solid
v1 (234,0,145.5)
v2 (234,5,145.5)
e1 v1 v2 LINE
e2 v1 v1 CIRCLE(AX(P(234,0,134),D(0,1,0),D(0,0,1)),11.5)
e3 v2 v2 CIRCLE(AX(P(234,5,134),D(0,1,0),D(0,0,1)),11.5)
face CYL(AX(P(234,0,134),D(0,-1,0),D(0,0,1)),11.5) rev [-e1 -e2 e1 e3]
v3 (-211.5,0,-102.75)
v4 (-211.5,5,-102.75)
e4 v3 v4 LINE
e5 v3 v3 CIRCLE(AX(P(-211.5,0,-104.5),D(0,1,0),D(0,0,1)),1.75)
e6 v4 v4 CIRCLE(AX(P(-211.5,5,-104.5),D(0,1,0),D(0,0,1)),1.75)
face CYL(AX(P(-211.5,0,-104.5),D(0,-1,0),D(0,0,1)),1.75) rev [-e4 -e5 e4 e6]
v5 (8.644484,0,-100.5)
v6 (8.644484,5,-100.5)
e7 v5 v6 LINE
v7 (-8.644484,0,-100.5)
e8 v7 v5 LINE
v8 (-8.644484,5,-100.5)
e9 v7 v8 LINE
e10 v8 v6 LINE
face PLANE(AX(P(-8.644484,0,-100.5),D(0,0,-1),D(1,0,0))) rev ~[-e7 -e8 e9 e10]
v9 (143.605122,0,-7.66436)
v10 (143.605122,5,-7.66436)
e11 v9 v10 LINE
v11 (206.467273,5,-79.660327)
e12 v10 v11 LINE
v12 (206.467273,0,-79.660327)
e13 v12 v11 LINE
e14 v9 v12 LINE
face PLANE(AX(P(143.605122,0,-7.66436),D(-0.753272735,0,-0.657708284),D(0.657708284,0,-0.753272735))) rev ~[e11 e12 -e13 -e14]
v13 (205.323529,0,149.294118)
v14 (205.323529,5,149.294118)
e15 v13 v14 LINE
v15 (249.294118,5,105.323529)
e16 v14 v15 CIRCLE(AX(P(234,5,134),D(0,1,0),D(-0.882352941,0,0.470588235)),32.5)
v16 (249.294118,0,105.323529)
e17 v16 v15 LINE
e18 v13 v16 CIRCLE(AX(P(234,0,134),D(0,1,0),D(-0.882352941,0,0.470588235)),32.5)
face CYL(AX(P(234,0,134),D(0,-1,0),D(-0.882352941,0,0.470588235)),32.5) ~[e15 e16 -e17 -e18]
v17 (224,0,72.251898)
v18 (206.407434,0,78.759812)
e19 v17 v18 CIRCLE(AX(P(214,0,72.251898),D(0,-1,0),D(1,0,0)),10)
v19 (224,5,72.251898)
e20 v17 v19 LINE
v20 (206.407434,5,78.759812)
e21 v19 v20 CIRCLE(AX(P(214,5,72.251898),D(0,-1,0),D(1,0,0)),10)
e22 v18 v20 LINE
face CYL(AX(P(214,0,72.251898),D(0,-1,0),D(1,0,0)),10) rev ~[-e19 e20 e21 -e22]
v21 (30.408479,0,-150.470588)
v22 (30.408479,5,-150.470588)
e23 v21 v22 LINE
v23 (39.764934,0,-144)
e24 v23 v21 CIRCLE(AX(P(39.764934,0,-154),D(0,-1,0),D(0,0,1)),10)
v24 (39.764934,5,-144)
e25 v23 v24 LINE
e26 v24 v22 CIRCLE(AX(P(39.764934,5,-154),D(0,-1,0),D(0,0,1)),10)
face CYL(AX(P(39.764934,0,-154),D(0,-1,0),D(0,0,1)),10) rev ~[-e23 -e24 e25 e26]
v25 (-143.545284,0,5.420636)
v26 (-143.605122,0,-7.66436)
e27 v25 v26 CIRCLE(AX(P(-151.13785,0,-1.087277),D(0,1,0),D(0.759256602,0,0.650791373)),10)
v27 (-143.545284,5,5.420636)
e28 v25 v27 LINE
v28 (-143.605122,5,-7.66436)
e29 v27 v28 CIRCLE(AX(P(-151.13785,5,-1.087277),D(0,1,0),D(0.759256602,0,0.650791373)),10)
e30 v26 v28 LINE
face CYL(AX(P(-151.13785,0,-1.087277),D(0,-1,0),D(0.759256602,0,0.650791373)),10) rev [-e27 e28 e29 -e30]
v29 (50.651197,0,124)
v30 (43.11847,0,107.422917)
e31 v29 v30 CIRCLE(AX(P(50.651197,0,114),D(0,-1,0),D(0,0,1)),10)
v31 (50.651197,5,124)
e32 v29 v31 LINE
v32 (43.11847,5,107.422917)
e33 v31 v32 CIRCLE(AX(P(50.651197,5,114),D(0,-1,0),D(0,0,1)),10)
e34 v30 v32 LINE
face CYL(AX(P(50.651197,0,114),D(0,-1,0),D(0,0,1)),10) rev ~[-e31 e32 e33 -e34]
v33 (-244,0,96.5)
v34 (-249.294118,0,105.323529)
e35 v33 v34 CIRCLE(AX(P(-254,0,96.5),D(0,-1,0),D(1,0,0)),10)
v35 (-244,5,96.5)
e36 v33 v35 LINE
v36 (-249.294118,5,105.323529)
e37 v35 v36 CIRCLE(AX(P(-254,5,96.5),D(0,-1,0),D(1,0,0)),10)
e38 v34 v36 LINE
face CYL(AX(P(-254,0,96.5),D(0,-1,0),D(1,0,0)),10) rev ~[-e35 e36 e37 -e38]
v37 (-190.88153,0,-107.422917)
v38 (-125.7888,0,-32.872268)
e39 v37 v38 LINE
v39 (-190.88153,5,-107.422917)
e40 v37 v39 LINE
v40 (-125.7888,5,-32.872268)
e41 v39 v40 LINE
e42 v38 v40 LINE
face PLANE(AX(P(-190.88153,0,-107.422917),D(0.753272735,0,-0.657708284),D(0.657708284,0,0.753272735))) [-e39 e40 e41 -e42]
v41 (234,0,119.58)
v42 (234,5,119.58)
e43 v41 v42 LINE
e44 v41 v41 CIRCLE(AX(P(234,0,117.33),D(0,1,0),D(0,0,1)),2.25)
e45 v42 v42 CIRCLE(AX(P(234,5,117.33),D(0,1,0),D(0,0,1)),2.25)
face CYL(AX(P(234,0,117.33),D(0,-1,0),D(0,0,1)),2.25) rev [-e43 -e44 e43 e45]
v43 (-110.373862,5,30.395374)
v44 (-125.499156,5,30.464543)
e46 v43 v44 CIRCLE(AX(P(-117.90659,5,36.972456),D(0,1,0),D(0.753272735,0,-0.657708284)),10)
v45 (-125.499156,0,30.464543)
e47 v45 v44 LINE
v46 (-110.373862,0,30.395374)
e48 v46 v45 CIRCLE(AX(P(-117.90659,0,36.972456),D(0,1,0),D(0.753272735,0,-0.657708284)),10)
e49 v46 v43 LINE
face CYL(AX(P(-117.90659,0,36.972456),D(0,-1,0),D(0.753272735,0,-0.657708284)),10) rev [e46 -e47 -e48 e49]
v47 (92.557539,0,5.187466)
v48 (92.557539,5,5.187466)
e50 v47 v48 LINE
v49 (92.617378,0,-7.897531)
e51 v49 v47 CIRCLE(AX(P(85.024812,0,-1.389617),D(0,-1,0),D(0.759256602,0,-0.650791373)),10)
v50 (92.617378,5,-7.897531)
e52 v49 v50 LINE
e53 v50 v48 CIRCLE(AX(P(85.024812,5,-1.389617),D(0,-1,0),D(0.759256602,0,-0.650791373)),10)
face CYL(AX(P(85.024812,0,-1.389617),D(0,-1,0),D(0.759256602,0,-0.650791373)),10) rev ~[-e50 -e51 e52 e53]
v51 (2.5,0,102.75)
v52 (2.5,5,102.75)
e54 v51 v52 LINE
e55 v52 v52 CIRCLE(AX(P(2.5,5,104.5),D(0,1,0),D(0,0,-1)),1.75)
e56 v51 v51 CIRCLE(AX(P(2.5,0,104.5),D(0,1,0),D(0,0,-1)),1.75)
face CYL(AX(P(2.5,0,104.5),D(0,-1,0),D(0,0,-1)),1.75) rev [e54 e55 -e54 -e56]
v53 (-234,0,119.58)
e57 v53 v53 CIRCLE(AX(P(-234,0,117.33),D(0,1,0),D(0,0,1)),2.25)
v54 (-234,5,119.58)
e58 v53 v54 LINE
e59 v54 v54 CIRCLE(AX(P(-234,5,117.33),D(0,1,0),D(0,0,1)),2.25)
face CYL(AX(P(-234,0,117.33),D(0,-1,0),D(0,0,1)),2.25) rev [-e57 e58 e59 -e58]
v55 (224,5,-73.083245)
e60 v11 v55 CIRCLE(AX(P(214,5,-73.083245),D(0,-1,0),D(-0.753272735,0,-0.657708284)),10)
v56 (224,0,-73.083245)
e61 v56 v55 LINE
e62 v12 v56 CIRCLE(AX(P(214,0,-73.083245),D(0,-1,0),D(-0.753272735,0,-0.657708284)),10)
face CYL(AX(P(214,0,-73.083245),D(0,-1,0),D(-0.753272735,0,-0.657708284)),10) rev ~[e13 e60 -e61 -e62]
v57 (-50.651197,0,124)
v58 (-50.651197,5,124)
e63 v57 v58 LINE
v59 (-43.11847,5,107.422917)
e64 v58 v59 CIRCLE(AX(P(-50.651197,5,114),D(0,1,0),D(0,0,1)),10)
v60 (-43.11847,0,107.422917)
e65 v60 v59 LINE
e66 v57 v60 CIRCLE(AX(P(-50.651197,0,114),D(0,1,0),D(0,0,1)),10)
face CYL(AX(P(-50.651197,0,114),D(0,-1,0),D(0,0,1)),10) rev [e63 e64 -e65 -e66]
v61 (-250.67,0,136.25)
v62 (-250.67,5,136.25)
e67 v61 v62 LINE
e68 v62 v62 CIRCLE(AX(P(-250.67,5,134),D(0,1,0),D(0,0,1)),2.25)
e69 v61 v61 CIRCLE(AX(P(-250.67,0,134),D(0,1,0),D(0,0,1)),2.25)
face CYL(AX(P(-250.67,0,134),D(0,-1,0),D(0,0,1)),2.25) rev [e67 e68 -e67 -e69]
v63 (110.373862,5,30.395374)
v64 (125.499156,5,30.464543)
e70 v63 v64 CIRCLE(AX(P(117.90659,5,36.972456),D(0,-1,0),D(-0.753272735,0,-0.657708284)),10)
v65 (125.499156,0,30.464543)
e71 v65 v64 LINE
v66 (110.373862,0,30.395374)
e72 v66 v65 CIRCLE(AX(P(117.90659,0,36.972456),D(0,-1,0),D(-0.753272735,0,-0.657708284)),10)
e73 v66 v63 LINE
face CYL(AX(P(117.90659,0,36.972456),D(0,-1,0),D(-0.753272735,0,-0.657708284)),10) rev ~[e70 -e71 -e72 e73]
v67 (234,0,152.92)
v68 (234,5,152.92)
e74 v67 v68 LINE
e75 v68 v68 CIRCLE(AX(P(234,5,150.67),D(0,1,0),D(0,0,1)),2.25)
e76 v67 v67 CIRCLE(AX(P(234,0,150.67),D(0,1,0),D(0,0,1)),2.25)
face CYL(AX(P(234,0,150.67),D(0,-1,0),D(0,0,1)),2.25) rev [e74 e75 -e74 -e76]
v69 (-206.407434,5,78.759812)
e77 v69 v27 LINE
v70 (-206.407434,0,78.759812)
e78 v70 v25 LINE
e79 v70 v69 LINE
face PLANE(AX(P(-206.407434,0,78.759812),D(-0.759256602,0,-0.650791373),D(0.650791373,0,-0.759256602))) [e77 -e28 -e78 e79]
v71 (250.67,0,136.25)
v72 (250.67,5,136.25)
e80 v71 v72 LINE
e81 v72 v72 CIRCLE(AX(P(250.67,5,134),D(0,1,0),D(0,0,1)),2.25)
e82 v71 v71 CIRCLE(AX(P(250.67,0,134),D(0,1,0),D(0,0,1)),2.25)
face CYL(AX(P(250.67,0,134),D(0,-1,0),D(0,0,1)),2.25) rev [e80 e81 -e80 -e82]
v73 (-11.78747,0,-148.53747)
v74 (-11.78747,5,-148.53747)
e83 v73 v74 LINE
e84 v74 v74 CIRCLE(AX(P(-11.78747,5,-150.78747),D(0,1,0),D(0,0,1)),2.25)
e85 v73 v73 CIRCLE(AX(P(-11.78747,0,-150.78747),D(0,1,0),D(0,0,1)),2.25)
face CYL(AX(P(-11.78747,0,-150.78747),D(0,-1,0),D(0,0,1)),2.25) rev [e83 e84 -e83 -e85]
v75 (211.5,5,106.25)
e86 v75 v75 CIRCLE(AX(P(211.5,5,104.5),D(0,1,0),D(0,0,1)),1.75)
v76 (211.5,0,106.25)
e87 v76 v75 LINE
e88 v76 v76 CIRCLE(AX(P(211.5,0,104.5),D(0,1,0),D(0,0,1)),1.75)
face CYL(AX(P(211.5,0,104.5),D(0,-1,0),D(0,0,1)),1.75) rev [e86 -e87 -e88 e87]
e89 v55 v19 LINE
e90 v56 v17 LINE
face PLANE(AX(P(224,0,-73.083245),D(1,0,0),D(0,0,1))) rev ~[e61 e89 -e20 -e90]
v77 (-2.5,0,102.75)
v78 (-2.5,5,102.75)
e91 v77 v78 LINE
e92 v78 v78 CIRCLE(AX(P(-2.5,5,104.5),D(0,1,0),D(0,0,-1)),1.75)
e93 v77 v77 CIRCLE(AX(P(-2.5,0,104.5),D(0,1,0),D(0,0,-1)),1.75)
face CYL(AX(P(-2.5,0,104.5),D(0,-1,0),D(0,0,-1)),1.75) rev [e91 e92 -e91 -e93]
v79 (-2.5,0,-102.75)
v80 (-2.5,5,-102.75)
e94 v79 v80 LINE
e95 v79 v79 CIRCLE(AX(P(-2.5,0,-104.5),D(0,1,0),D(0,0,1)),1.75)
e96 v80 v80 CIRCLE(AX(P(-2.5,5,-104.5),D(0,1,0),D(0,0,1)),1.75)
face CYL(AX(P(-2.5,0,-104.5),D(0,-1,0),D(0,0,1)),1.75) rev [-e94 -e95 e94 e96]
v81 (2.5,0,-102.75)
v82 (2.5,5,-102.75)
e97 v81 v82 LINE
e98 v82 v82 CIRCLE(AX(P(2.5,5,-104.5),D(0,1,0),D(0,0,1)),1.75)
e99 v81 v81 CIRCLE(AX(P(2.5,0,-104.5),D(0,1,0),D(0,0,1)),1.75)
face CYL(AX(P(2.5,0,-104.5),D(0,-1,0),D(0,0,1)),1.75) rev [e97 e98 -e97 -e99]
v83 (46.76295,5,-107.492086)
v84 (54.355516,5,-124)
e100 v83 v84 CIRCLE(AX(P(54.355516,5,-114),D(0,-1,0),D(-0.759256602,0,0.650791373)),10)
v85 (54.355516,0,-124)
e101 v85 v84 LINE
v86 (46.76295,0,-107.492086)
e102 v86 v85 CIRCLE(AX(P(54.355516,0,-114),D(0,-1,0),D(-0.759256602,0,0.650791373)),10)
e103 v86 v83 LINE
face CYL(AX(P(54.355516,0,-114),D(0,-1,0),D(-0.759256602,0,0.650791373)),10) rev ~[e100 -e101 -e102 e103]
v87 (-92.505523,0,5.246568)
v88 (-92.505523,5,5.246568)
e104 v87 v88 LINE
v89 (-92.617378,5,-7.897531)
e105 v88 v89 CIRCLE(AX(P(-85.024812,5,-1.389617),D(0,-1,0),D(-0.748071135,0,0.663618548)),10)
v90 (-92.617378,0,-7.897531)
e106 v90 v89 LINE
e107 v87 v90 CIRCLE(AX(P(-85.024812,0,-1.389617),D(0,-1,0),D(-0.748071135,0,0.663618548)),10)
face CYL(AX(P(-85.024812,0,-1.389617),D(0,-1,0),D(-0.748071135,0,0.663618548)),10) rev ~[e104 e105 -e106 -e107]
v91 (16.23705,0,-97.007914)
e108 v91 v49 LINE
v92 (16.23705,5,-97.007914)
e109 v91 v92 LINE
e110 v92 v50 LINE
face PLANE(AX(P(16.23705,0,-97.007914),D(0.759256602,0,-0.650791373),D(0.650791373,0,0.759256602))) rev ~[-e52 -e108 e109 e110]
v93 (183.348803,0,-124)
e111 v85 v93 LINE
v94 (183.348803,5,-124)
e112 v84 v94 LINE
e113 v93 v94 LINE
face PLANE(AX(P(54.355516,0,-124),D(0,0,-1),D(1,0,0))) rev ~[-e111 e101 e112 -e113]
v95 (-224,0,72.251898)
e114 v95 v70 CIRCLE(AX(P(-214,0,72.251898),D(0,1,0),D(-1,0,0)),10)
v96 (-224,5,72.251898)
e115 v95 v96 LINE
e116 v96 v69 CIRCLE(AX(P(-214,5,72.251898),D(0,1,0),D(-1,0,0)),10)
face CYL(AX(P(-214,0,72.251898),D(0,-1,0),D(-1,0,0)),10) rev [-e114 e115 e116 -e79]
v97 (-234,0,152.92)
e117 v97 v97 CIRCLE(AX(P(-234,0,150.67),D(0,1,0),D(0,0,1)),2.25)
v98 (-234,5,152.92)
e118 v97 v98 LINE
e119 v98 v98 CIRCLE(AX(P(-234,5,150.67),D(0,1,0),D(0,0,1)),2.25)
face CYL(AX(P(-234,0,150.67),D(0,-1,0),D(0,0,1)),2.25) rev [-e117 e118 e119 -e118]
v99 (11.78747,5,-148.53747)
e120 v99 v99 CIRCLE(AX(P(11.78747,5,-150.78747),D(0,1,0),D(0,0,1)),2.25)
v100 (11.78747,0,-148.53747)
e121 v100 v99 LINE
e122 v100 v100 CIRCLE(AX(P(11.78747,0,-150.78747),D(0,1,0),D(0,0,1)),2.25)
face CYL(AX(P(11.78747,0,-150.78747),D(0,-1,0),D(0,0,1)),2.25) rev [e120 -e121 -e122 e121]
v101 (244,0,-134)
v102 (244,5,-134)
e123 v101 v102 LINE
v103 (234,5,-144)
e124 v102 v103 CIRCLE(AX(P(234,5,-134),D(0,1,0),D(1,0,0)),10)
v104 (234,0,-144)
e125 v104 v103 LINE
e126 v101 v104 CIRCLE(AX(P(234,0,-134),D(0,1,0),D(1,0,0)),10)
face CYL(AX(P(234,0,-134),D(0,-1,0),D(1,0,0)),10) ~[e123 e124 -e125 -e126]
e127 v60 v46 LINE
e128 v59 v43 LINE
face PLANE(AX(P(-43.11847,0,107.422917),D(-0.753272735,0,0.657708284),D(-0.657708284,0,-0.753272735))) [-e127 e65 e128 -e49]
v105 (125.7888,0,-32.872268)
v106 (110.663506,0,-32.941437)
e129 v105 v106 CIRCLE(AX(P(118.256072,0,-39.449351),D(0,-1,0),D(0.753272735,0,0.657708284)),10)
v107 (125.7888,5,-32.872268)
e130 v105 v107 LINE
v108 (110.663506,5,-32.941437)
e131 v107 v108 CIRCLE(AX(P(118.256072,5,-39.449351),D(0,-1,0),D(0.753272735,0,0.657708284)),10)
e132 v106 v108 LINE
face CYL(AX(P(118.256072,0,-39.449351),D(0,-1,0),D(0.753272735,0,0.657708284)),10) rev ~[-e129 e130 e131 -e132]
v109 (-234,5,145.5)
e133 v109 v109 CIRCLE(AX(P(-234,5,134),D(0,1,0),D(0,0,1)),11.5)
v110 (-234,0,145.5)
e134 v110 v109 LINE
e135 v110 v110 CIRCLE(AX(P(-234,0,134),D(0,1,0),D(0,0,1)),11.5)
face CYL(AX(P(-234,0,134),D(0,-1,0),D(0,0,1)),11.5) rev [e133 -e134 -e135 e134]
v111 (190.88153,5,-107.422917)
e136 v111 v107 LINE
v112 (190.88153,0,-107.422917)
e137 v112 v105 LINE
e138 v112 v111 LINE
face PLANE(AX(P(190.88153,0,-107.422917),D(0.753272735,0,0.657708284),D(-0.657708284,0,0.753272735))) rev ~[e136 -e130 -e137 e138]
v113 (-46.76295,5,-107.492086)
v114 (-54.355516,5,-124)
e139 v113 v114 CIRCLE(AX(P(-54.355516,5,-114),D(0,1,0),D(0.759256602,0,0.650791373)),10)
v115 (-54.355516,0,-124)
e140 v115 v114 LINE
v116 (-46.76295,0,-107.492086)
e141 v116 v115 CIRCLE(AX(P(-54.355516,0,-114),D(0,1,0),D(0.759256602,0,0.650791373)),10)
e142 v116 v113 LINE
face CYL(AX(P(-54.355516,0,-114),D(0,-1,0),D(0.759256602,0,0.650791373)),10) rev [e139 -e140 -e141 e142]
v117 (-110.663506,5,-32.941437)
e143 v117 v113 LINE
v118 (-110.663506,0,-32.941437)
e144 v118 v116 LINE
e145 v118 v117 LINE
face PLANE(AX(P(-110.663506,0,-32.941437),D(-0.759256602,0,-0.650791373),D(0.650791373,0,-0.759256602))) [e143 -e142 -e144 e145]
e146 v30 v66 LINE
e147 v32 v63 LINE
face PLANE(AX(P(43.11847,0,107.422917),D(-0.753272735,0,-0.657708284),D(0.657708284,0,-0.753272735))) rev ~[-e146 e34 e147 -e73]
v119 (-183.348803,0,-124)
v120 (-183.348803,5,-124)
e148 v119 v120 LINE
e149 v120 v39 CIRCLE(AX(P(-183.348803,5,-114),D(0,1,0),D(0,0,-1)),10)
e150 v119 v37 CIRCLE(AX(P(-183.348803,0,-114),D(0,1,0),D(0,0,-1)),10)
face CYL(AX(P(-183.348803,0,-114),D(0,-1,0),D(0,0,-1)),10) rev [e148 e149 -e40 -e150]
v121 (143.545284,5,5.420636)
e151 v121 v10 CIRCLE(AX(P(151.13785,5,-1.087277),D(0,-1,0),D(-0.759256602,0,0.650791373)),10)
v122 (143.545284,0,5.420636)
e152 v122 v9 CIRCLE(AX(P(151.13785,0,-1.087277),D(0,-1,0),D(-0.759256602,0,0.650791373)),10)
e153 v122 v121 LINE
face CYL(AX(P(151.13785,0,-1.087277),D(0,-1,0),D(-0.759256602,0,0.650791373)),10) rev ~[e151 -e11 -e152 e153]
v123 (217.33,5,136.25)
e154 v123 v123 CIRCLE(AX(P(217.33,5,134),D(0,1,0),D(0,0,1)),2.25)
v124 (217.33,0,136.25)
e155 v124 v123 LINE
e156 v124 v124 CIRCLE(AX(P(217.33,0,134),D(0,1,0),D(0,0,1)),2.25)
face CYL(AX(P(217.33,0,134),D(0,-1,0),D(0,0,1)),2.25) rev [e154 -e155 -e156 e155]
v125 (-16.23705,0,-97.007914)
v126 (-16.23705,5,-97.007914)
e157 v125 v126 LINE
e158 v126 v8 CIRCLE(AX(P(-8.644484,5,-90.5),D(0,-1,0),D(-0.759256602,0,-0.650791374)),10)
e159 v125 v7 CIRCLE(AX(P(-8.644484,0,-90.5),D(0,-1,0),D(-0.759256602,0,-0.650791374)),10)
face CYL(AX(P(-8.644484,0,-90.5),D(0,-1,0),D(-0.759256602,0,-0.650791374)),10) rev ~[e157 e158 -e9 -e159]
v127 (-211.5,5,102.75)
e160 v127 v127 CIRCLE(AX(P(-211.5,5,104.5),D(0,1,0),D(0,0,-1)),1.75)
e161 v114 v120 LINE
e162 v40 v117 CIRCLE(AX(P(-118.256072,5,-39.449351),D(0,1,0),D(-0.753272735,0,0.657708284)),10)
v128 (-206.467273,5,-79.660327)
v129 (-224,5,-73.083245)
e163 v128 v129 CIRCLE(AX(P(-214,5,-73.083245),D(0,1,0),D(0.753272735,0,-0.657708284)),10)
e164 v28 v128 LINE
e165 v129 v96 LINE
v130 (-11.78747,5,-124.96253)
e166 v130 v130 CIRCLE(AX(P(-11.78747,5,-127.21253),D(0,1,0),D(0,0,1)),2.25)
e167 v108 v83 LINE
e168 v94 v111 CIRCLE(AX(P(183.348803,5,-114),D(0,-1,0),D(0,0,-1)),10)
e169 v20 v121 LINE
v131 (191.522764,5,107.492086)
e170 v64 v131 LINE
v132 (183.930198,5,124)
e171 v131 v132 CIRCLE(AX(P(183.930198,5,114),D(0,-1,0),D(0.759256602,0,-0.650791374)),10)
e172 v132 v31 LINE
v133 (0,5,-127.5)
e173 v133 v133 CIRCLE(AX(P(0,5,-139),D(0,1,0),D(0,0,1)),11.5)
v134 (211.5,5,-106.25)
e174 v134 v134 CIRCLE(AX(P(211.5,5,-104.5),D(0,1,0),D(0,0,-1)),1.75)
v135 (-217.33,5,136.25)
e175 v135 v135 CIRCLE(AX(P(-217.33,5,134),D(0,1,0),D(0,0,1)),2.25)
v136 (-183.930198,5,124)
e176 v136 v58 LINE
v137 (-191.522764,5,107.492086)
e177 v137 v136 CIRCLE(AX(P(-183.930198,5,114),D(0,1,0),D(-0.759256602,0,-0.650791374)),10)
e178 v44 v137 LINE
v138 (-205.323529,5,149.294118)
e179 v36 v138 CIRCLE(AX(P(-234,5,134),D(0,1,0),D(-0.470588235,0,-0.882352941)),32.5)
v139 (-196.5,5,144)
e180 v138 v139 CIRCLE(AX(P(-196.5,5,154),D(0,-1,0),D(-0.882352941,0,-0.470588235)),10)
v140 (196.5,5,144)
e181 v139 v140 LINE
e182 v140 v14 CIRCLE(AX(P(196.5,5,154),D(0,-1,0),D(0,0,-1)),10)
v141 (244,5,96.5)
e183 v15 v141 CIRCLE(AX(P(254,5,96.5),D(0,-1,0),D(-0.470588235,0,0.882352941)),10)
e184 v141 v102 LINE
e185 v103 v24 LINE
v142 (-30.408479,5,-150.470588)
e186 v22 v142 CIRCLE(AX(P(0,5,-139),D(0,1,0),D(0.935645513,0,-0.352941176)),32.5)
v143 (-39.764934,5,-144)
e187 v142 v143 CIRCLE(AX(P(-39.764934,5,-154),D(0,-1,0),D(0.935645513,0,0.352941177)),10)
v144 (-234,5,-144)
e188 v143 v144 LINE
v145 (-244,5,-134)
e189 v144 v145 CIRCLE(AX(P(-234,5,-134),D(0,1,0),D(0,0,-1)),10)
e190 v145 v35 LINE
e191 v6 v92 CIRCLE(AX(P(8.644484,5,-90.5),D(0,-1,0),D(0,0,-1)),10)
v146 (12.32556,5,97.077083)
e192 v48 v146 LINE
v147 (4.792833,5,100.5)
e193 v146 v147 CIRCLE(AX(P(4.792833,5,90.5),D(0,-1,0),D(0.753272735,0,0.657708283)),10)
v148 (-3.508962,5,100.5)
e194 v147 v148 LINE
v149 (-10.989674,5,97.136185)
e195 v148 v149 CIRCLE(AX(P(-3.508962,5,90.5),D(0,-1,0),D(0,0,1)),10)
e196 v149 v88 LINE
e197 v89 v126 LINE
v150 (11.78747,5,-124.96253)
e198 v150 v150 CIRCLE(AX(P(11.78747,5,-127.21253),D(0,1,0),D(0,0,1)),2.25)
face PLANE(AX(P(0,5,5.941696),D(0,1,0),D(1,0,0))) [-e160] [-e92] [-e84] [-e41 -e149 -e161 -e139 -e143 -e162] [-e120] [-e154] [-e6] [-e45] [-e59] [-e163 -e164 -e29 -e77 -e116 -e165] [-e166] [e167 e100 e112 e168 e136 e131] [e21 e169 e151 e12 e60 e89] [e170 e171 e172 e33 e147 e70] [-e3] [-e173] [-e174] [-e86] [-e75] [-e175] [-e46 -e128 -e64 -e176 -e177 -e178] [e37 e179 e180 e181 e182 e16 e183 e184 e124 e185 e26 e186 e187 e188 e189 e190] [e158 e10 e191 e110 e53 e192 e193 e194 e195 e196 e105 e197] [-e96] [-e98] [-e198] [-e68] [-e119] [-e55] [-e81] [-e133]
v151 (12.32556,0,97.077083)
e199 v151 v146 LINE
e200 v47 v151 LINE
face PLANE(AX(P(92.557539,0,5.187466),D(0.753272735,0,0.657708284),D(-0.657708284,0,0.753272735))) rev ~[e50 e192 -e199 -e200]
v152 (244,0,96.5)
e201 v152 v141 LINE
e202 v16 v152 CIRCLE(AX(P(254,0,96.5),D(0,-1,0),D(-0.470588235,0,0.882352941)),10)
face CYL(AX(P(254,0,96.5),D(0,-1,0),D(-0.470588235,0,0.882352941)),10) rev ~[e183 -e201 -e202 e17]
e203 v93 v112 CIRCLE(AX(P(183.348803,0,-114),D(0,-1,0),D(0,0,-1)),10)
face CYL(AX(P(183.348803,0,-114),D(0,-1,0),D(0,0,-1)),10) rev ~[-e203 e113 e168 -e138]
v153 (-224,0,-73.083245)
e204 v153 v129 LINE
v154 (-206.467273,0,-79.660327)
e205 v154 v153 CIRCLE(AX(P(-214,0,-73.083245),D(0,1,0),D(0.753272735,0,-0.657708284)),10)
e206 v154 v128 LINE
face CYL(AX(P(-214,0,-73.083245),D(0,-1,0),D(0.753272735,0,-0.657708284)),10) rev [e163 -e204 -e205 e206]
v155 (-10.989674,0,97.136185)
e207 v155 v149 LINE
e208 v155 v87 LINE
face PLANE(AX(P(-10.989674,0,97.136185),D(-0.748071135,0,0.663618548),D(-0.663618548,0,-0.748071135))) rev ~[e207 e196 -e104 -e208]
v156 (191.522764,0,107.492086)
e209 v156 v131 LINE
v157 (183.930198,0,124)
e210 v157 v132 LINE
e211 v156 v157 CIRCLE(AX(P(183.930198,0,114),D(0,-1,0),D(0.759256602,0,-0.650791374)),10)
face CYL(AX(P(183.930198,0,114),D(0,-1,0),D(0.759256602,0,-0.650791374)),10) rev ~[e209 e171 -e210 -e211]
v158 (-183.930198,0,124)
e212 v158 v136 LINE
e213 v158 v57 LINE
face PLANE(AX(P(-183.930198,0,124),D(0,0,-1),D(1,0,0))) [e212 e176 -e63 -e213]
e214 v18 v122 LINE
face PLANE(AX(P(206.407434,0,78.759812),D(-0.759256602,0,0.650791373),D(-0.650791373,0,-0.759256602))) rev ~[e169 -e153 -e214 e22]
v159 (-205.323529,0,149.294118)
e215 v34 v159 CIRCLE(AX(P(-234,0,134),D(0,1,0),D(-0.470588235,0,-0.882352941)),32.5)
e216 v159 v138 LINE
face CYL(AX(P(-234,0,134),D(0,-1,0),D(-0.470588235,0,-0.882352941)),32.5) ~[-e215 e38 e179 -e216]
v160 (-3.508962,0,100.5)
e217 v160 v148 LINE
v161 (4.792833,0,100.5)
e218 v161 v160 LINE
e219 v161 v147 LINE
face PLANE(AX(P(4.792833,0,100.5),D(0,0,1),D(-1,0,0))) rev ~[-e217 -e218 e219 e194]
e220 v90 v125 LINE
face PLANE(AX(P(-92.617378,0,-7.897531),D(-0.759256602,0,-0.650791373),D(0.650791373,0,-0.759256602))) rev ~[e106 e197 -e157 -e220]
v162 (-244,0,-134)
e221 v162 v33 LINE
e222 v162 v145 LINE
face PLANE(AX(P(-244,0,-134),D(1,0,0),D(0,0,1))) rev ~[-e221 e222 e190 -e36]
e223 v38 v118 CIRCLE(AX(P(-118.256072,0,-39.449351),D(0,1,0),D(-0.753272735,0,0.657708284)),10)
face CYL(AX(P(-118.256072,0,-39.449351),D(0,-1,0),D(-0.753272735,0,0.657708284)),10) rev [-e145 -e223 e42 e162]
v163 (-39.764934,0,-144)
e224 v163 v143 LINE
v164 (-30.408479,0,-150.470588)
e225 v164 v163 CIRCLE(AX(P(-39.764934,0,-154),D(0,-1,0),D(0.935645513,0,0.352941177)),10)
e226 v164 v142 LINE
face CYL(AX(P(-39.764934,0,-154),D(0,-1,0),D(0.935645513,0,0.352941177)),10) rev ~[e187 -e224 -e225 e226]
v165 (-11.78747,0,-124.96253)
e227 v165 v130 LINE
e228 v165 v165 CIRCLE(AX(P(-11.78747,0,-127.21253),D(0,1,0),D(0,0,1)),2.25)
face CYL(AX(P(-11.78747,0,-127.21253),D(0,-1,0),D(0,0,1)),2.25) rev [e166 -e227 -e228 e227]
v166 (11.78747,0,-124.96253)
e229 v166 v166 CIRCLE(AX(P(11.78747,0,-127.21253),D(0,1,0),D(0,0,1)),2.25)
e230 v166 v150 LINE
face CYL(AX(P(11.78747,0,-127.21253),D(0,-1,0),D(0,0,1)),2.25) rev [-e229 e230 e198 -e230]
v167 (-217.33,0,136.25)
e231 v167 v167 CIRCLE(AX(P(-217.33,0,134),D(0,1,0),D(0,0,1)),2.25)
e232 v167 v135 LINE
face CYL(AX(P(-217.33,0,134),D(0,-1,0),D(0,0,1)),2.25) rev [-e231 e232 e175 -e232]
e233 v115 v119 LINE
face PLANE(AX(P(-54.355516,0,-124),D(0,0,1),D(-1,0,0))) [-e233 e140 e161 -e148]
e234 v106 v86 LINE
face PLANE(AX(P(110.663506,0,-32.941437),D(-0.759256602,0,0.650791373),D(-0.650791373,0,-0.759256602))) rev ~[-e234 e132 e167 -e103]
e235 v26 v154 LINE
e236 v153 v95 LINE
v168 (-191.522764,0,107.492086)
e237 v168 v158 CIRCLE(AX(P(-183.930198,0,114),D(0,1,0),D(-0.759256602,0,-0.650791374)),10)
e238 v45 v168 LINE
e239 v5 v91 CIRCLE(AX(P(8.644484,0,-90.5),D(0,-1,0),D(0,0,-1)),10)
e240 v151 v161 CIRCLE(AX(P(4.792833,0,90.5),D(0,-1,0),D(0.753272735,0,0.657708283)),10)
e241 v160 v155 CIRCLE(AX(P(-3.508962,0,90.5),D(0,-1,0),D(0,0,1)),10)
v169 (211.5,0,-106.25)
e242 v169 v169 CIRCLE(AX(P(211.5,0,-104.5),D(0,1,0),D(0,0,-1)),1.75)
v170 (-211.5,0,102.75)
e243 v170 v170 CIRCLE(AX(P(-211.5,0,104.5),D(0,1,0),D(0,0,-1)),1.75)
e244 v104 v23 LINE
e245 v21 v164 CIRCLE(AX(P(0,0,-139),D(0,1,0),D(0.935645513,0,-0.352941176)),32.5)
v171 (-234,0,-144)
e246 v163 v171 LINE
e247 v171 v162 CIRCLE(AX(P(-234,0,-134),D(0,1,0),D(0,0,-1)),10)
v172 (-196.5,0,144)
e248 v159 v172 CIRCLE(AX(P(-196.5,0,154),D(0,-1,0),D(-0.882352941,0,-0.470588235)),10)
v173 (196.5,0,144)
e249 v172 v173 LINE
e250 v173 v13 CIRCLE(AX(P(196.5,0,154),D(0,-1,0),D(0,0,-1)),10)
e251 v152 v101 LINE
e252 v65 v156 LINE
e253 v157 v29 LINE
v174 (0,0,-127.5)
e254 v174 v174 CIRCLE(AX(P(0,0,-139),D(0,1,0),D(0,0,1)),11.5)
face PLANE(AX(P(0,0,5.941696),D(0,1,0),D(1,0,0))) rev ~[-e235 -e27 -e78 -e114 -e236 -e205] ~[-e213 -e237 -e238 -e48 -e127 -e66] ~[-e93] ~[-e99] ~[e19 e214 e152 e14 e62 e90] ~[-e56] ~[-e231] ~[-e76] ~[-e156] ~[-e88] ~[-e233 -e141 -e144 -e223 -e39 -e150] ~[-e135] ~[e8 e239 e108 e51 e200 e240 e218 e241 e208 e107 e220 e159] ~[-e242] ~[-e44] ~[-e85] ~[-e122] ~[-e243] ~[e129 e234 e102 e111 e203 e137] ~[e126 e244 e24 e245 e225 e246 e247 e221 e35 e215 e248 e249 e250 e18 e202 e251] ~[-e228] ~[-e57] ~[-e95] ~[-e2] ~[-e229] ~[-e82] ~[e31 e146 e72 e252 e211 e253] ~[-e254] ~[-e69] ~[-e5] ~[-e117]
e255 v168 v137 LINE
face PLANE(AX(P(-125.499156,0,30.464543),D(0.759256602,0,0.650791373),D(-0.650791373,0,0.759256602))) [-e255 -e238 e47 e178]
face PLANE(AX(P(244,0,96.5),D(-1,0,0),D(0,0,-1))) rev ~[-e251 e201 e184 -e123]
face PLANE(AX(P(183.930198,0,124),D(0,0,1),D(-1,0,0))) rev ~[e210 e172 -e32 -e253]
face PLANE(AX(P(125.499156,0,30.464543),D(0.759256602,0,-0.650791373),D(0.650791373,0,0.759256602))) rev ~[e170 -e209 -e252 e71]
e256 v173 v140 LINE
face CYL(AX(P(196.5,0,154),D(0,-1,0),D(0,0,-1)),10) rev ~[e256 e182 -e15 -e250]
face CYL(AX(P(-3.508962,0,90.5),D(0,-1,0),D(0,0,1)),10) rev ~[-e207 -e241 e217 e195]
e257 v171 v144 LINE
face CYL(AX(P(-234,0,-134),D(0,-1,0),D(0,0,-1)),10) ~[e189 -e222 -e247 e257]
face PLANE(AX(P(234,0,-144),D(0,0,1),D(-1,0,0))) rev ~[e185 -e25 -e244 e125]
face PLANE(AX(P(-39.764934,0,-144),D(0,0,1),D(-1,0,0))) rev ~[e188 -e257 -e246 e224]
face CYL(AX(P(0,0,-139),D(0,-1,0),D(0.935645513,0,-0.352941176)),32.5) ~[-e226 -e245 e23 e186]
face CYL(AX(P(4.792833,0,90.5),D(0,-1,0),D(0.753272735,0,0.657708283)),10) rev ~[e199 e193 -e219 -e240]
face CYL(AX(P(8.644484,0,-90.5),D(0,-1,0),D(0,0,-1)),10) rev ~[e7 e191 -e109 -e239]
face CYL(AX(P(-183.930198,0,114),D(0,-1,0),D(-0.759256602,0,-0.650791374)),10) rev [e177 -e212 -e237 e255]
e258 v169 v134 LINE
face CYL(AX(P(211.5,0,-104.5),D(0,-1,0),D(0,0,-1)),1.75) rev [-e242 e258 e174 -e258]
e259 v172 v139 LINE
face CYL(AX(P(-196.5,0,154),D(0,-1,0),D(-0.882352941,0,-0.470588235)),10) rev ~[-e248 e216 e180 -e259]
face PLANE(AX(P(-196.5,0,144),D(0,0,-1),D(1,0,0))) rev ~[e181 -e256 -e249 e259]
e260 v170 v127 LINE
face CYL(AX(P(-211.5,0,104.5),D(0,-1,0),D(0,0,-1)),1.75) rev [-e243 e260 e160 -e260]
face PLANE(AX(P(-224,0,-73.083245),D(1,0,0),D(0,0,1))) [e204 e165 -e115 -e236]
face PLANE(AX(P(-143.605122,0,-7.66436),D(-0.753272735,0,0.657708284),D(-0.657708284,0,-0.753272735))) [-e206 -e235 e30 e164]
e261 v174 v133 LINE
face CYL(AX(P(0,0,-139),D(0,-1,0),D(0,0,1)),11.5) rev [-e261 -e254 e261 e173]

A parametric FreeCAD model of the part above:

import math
import FreeCAD as App
import Part
import Sketcher

V = App.Vector
Q = App.Units.Quantity

doc = App.newDocument("Part")
body = doc.addObject("PartDesign::Body", "Body")

# Sketch on XZ plane
sketch1 = doc.addObject("Sketcher::SketchObject", "Sketch")
body.addObject(sketch1)
sketch1.AttachmentSupport = (doc.XZ_Plane, [""])
sketch1.MapMode = "FlatFace"
sketch1.addGeometry(Part.LineSegment(V(-196.5, 144, 0), V(196.5, 144, 0)), False)
sketch1.addGeometry(Part.ArcOfCircle(Part.Circle(V(196.5, 154, 0), V(0, 0, 1), 10), math.radians(-90), math.radians(-28.072487)), False)
sketch1.addGeometry(Part.ArcOfCircle(Part.Circle(V(234, 134, 0), V(0, 0, 1), 32.5), math.radians(-61.927513), math.radians(151.927513)), False)
sketch1.addGeometry(Part.ArcOfCircle(Part.Circle(V(254, 96.5, 0), V(0, 0, 1), 10), math.radians(118.072487), math.radians(180)), False)
sketch1.addGeometry(Part.LineSegment(V(244, 96.5, 0), V(244, -134, 0)), False)
sketch1.addGeometry(Part.ArcOfCircle(Part.Circle(V(234, -134, 0), V(0, 0, 1), 10), math.radians(-90), math.radians(0)), False)
sketch1.addGeometry(Part.LineSegment(V(234, -144, 0), V(39.764934, -144, 0)), False)
sketch1.addGeometry(Part.ArcOfCircle(Part.Circle(V(39.764934, -154, 0), V(0, 0, 1), 10), math.radians(90), math.radians(159.332683)), False)
sketch1.addGeometry(Part.ArcOfCircle(Part.Circle(V(0, -139, 0), V(0, 0, 1), 32.5), math.radians(-159.332684), math.radians(-20.667316)), False)
sketch1.addGeometry(Part.ArcOfCircle(Part.Circle(V(-39.764934, -154, 0), V(0, 0, 1), 10), math.radians(20.667317), math.radians(90)), False)
sketch1.addGeometry(Part.LineSegment(V(-39.764934, -144, 0), V(-234, -144, 0)), False)
sketch1.addGeometry(Part.ArcOfCircle(Part.Circle(V(-234, -134, 0), V(0, 0, 1), 10), math.radians(180), math.radians(270)), False)
sketch1.addGeometry(Part.LineSegment(V(-244, -134, 0), V(-244, 96.5, 0)), False)
sketch1.addGeometry(Part.ArcOfCircle(Part.Circle(V(-254, 96.5, 0), V(0, 0, 1), 10), math.radians(0), math.radians(61.927513)), False)
sketch1.addGeometry(Part.ArcOfCircle(Part.Circle(V(-234, 134, 0), V(0, 0, 1), 32.5), math.radians(28.072487), math.radians(241.927513)), False)
sketch1.addGeometry(Part.ArcOfCircle(Part.Circle(V(-196.5, 154, 0), V(0, 0, 1), 10), math.radians(-151.927513), math.radians(-90)), False)
sketch1.addGeometry(Part.Circle(V(-234, 150.67, 0), V(0, 0, 1), 2.25), False)
sketch1.addGeometry(Part.Circle(V(-250.67, 134, 0), V(0, 0, 1), 2.25), False)
sketch1.addGeometry(Part.Circle(V(-234, 134, 0), V(0, 0, 1), 11.5), False)
sketch1.addGeometry(Part.Circle(V(-217.33, 134, 0), V(0, 0, 1), 2.25), False)
sketch1.addGeometry(Part.Circle(V(-234, 117.33, 0), V(0, 0, 1), 2.25), False)
sketch1.addGeometry(Part.Circle(V(-211.5, 104.5, 0), V(0, 0, 1), 1.75), False)
sketch1.addGeometry(Part.Circle(V(-2.5, 104.5, 0), V(0, 0, 1), 1.75), False)
sketch1.addGeometry(Part.LineSegment(V(-50.651197, 124, 0), V(-183.930198, 124, 0)), False)
sketch1.addGeometry(Part.ArcOfCircle(Part.Circle(V(-183.930198, 114, 0), V(0, 0, 1), 10), math.radians(90), math.radians(220.601295)), False)
sketch1.addGeometry(Part.LineSegment(V(-191.522764, 107.492086, 0), V(-125.499156, 30.464543, 0)), False)
sketch1.addGeometry(Part.ArcOfCircle(Part.Circle(V(-117.90659, 36.972456, 0), V(0, 0, 1), 10), math.radians(-139.398705), math.radians(-41.125327)), False)
sketch1.addGeometry(Part.LineSegment(V(-110.373862, 30.395374, 0), V(-43.11847, 107.422917, 0)), False)
sketch1.addGeometry(Part.ArcOfCircle(Part.Circle(V(-50.651197, 114, 0), V(0, 0, 1), 10), math.radians(-41.125327), math.radians(90)), False)
sketch1.addGeometry(Part.Circle(V(2.5, 104.5, 0), V(0, 0, 1), 1.75), False)
sketch1.addGeometry(Part.Circle(V(217.33, 134, 0), V(0, 0, 1), 2.25), False)
sketch1.addGeometry(Part.Circle(V(234, 150.67, 0), V(0, 0, 1), 2.25), False)
sketch1.addGeometry(Part.Circle(V(234, 134, 0), V(0, 0, 1), 11.5), False)
sketch1.addGeometry(Part.Circle(V(250.67, 134, 0), V(0, 0, 1), 2.25), False)
sketch1.addGeometry(Part.Circle(V(234, 117.33, 0), V(0, 0, 1), 2.25), False)
sketch1.addGeometry(Part.Circle(V(211.5, 104.5, 0), V(0, 0, 1), 1.75), False)
sketch1.addGeometry(Part.ArcOfCircle(Part.Circle(V(117.90659, 36.972456, 0), V(0, 0, 1), 10), math.radians(-138.874673), math.radians(-40.601295)), False)
sketch1.addGeometry(Part.LineSegment(V(125.499156, 30.464543, 0), V(191.522764, 107.492086, 0)), False)
sketch1.addGeometry(Part.ArcOfCircle(Part.Circle(V(183.930198, 114, 0), V(0, 0, 1), 10), math.radians(-40.601295), math.radians(90)), False)
sketch1.addGeometry(Part.LineSegment(V(183.930198, 124, 0), V(50.651197, 124, 0)), False)
sketch1.addGeometry(Part.ArcOfCircle(Part.Circle(V(50.651197, 114, 0), V(0, 0, 1), 10), math.radians(90), math.radians(221.125327)), False)
sketch1.addGeometry(Part.LineSegment(V(43.11847, 107.422917, 0), V(110.373862, 30.395374, 0)), False)
sketch1.addGeometry(Part.ArcOfCircle(Part.Circle(V(8.644484, -90.5, 0), V(0, 0, 1), 10), math.radians(-90), math.radians(-40.601295)), False)
sketch1.addGeometry(Part.LineSegment(V(16.23705, -97.007914, 0), V(92.617378, -7.897531, 0)), False)
sketch1.addGeometry(Part.ArcOfCircle(Part.Circle(V(85.024812, -1.389617, 0), V(0, 0, 1), 10), math.radians(-40.601295), math.radians(41.125327)), False)
sketch1.addGeometry(Part.LineSegment(V(92.557539, 5.187466, 0), V(12.32556, 97.077083, 0)), False)
sketch1.addGeometry(Part.ArcOfCircle(Part.Circle(V(4.792833, 90.5, 0), V(0, 0, 1), 10), math.radians(41.125327), math.radians(90)), False)
sketch1.addGeometry(Part.LineSegment(V(4.792833, 100.5, 0), V(-3.508962, 100.5, 0)), False)
sketch1.addGeometry(Part.ArcOfCircle(Part.Circle(V(-3.508962, 90.5, 0), V(0, 0, 1), 10), math.radians(90), math.radians(138.423569)), False)
sketch1.addGeometry(Part.LineSegment(V(-10.989674, 97.136185, 0), V(-92.505523, 5.246568, 0)), False)
sketch1.addGeometry(Part.ArcOfCircle(Part.Circle(V(-85.024812, -1.389617, 0), V(0, 0, 1), 10), math.radians(138.423569), math.radians(220.601295)), False)
sketch1.addGeometry(Part.LineSegment(V(-92.617378, -7.897531, 0), V(-16.23705, -97.007914, 0)), False)
sketch1.addGeometry(Part.ArcOfCircle(Part.Circle(V(-8.644484, -90.5, 0), V(0, 0, 1), 10), math.radians(-139.398705), math.radians(-90)), False)
sketch1.addGeometry(Part.LineSegment(V(-8.644484, -100.5, 0), V(8.644484, -100.5, 0)), False)
sketch1.addGeometry(Part.LineSegment(V(-143.545284, 5.420636, 0), V(-206.407434, 78.759812, 0)), False)
sketch1.addGeometry(Part.ArcOfCircle(Part.Circle(V(-214, 72.251898, 0), V(0, 0, 1), 10), math.radians(40.601295), math.radians(180)), False)
sketch1.addGeometry(Part.LineSegment(V(-224, 72.251898, 0), V(-224, -73.083245, 0)), False)
sketch1.addGeometry(Part.ArcOfCircle(Part.Circle(V(-214, -73.083245, 0), V(0, 0, 1), 10), math.radians(180), math.radians(318.874673)), False)
sketch1.addGeometry(Part.LineSegment(V(-206.467273, -79.660327, 0), V(-143.605122, -7.66436, 0)), False)
sketch1.addGeometry(Part.ArcOfCircle(Part.Circle(V(-151.13785, -1.087277, 0), V(0, 0, 1), 10), math.radians(-41.125327), math.radians(40.601295)), False)
sketch1.addGeometry(Part.Circle(V(-211.5, -104.5, 0), V(0, 0, 1), 1.75), False)
sketch1.addGeometry(Part.LineSegment(V(-125.7888, -32.872268, 0), V(-190.88153, -107.422917, 0)), False)
sketch1.addGeometry(Part.ArcOfCircle(Part.Circle(V(-183.348803, -114, 0), V(0, 0, 1), 10), math.radians(138.874673), math.radians(270)), False)
sketch1.addGeometry(Part.LineSegment(V(-183.348803, -124, 0), V(-54.355516, -124, 0)), False)
sketch1.addGeometry(Part.ArcOfCircle(Part.Circle(V(-54.355516, -114, 0), V(0, 0, 1), 10), math.radians(-90), math.radians(40.601295)), False)
sketch1.addGeometry(Part.LineSegment(V(-46.76295, -107.492086, 0), V(-110.663506, -32.941437, 0)), False)
sketch1.addGeometry(Part.ArcOfCircle(Part.Circle(V(-118.256072, -39.449351, 0), V(0, 0, 1), 10), math.radians(40.601295), math.radians(138.874673)), False)
sketch1.addGeometry(Part.Circle(V(-2.5, -104.5, 0), V(0, 0, 1), 1.75), False)
sketch1.addGeometry(Part.Circle(V(-11.78747, -127.21253, 0), V(0, 0, 1), 2.25), False)
sketch1.addGeometry(Part.Circle(V(-11.78747, -150.78747, 0), V(0, 0, 1), 2.25), False)
sketch1.addGeometry(Part.ArcOfCircle(Part.Circle(V(214, -73.083245, 0), V(0, 0, 1), 10), math.radians(-138.874673), math.radians(0)), False)
sketch1.addGeometry(Part.LineSegment(V(224, -73.083245, 0), V(224, 72.251898, 0)), False)
sketch1.addGeometry(Part.ArcOfCircle(Part.Circle(V(214, 72.251898, 0), V(0, 0, 1), 10), math.radians(0), math.radians(139.398705)), False)
sketch1.addGeometry(Part.LineSegment(V(206.407434, 78.759812, 0), V(143.545284, 5.420636, 0)), False)
sketch1.addGeometry(Part.ArcOfCircle(Part.Circle(V(151.13785, -1.087277, 0), V(0, 0, 1), 10), math.radians(139.398705), math.radians(221.125327)), False)
sketch1.addGeometry(Part.LineSegment(V(143.605122, -7.66436, 0), V(206.467273, -79.660327, 0)), False)
sketch1.addGeometry(Part.Circle(V(2.5, -104.5, 0), V(0, 0, 1), 1.75), False)
sketch1.addGeometry(Part.ArcOfCircle(Part.Circle(V(54.355516, -114, 0), V(0, 0, 1), 10), math.radians(139.398705), math.radians(270)), False)
sketch1.addGeometry(Part.LineSegment(V(54.355516, -124, 0), V(183.348803, -124, 0)), False)
sketch1.addGeometry(Part.ArcOfCircle(Part.Circle(V(183.348803, -114, 0), V(0, 0, 1), 10), math.radians(-90), math.radians(41.125327)), False)
sketch1.addGeometry(Part.LineSegment(V(190.88153, -107.422917, 0), V(125.7888, -32.872268, 0)), False)
sketch1.addGeometry(Part.ArcOfCircle(Part.Circle(V(118.256072, -39.449351, 0), V(0, 0, 1), 10), math.radians(41.125327), math.radians(139.398705)), False)
sketch1.addGeometry(Part.LineSegment(V(110.663506, -32.941437, 0), V(46.76295, -107.492086, 0)), False)
sketch1.addGeometry(Part.Circle(V(11.78747, -127.21253, 0), V(0, 0, 1), 2.25), False)
sketch1.addGeometry(Part.Circle(V(0, -139, 0), V(0, 0, 1), 11.5), False)
sketch1.addGeometry(Part.Circle(V(11.78747, -150.78747, 0), V(0, 0, 1), 2.25), False)
sketch1.addGeometry(Part.Circle(V(211.5, -104.5, 0), V(0, 0, 1), 1.75), False)
sketch1.addConstraint(Sketcher.Constraint("Tangent", 0, 2, 1, 1))
sketch1.addConstraint(Sketcher.Constraint("Tangent", 1, 2, 2, 2))
sketch1.addConstraint(Sketcher.Constraint("Tangent", 2, 1, 3, 1))
sketch1.addConstraint(Sketcher.Constraint("Tangent", 3, 2, 4, 1))
sketch1.addConstraint(Sketcher.Constraint("Tangent", 4, 2, 5, 2))
sketch1.addConstraint(Sketcher.Constraint("Tangent", 5, 1, 6, 1))
sketch1.addConstraint(Sketcher.Constraint("Tangent", 6, 2, 7, 1))
sketch1.addConstraint(Sketcher.Constraint("Tangent", 7, 2, 8, 2))
sketch1.addConstraint(Sketcher.Constraint("Tangent", 8, 1, 9, 1))
sketch1.addConstraint(Sketcher.Constraint("Tangent", 9, 2, 10, 1))
sketch1.addConstraint(Sketcher.Constraint("Tangent", 10, 2, 11, 2))
sketch1.addConstraint(Sketcher.Constraint("Tangent", 11, 1, 12, 1))
sketch1.addConstraint(Sketcher.Constraint("Tangent", 12, 2, 13, 1))
sketch1.addConstraint(Sketcher.Constraint("Tangent", 13, 2, 14, 2))
sketch1.addConstraint(Sketcher.Constraint("Tangent", 14, 1, 15, 1))
sketch1.addConstraint(Sketcher.Constraint("Tangent", 15, 2, 0, 1))
sketch1.addConstraint(Sketcher.Constraint("Tangent", 23, 2, 24, 1))
sketch1.addConstraint(Sketcher.Constraint("Tangent", 24, 2, 25, 1))
sketch1.addConstraint(Sketcher.Constraint("Tangent", 25, 2, 26, 1))
sketch1.addConstraint(Sketcher.Constraint("Tangent", 26, 2, 27, 1))
sketch1.addConstraint(Sketcher.Constraint("Tangent", 27, 2, 28, 1))
sketch1.addConstraint(Sketcher.Constraint("Tangent", 28, 2, 23, 1))
sketch1.addConstraint(Sketcher.Constraint("Tangent", 36, 2, 37, 1))
sketch1.addConstraint(Sketcher.Constraint("Tangent", 37, 2, 38, 1))
sketch1.addConstraint(Sketcher.Constraint("Tangent", 38, 2, 39, 1))
sketch1.addConstraint(Sketcher.Constraint("Tangent", 39, 2, 40, 1))
sketch1.addConstraint(Sketcher.Constraint("Tangent", 40, 2, 41, 1))
sketch1.addConstraint(Sketcher.Constraint("Tangent", 41, 2, 36, 1))
sketch1.addConstraint(Sketcher.Constraint("Tangent", 42, 2, 43, 1))
sketch1.addConstraint(Sketcher.Constraint("Tangent", 43, 2, 44, 1))
sketch1.addConstraint(Sketcher.Constraint("Tangent", 44, 2, 45, 1))
sketch1.addConstraint(Sketcher.Constraint("Tangent", 45, 2, 46, 1))
sketch1.addConstraint(Sketcher.Constraint("Tangent", 46, 2, 47, 1))
sketch1.addConstraint(Sketcher.Constraint("Tangent", 47, 2, 48, 1))
sketch1.addConstraint(Sketcher.Constraint("Tangent", 48, 2, 49, 1))
sketch1.addConstraint(Sketcher.Constraint("Tangent", 49, 2, 50, 1))
sketch1.addConstraint(Sketcher.Constraint("Tangent", 50, 2, 51, 1))
sketch1.addConstraint(Sketcher.Constraint("Tangent", 51, 2, 52, 1))
sketch1.addConstraint(Sketcher.Constraint("Tangent", 52, 2, 53, 1))
sketch1.addConstraint(Sketcher.Constraint("Tangent", 53, 2, 42, 1))
sketch1.addConstraint(Sketcher.Constraint("Tangent", 54, 2, 55, 1))
sketch1.addConstraint(Sketcher.Constraint("Tangent", 55, 2, 56, 1))
sketch1.addConstraint(Sketcher.Constraint("Tangent", 56, 2, 57, 1))
sketch1.addConstraint(Sketcher.Constraint("Tangent", 57, 2, 58, 1))
sketch1.addConstraint(Sketcher.Constraint("Tangent", 58, 2, 59, 1))
sketch1.addConstraint(Sketcher.Constraint("Tangent", 59, 2, 54, 1))
sketch1.addConstraint(Sketcher.Constraint("Tangent", 61, 2, 62, 1))
sketch1.addConstraint(Sketcher.Constraint("Tangent", 62, 2, 63, 1))
sketch1.addConstraint(Sketcher.Constraint("Tangent", 63, 2, 64, 1))
sketch1.addConstraint(Sketcher.Constraint("Tangent", 64, 2, 65, 1))
sketch1.addConstraint(Sketcher.Constraint("Tangent", 65, 2, 66, 1))
sketch1.addConstraint(Sketcher.Constraint("Tangent", 66, 2, 61, 1))
sketch1.addConstraint(Sketcher.Constraint("Tangent", 70, 2, 71, 1))
sketch1.addConstraint(Sketcher.Constraint("Tangent", 71, 2, 72, 1))
sketch1.addConstraint(Sketcher.Constraint("Tangent", 72, 2, 73, 1))
sketch1.addConstraint(Sketcher.Constraint("Tangent", 73, 2, 74, 1))
sketch1.addConstraint(Sketcher.Constraint("Tangent", 74, 2, 75, 1))
sketch1.addConstraint(Sketcher.Constraint("Tangent", 75, 2, 70, 1))
sketch1.addConstraint(Sketcher.Constraint("Tangent", 77, 2, 78, 1))
sketch1.addConstraint(Sketcher.Constraint("Tangent", 78, 2, 79, 1))
sketch1.addConstraint(Sketcher.Constraint("Tangent", 79, 2, 80, 1))
sketch1.addConstraint(Sketcher.Constraint("Tangent", 80, 2, 81, 1))
sketch1.addConstraint(Sketcher.Constraint("Tangent", 81, 2, 82, 1))
sketch1.addConstraint(Sketcher.Constraint("Tangent", 82, 2, 77, 1))
sketch1.addConstraint(Sketcher.Constraint("Horizontal", 0))
sketch1.addConstraint(Sketcher.Constraint("Vertical", 4))
sketch1.addConstraint(Sketcher.Constraint("Horizontal", 6))
sketch1.addConstraint(Sketcher.Constraint("Horizontal", 10))
sketch1.addConstraint(Sketcher.Constraint("Vertical", 12))
sketch1.addConstraint(Sketcher.Constraint("Horizontal", 23))
sketch1.addConstraint(Sketcher.Constraint("Horizontal", 39))
sketch1.addConstraint(Sketcher.Constraint("Horizontal", 47))
sketch1.addConstraint(Sketcher.Constraint("Horizontal", 53))
sketch1.addConstraint(Sketcher.Constraint("Vertical", 56))
sketch1.addConstraint(Sketcher.Constraint("Horizontal", 63))
sketch1.addConstraint(Sketcher.Constraint("Vertical", 71))
sketch1.addConstraint(Sketcher.Constraint("Horizontal", 78))
sketch1.addConstraint(Sketcher.Constraint("Coincident", 18, 3, 14, 3))
sketch1.addConstraint(Sketcher.Constraint("Coincident", 32, 3, 2, 3))
sketch1.addConstraint(Sketcher.Constraint("Coincident", 84, 3, 8, 3))
sketch1.addConstraint(Sketcher.Constraint("Equal", 1, 3))
sketch1.addConstraint(Sketcher.Constraint("Equal", 3, 5))
sketch1.addConstraint(Sketcher.Constraint("Equal", 5, 7))
sketch1.addConstraint(Sketcher.Constraint("Equal", 2, 8))
sketch1.addConstraint(Sketcher.Constraint("Equal", 7, 9))
sketch1.addConstraint(Sketcher.Constraint("Equal", 9, 11))
sketch1.addConstraint(Sketcher.Constraint("Equal", 11, 13))
sketch1.addConstraint(Sketcher.Constraint("Equal", 8, 14))
sketch1.addConstraint(Sketcher.Constraint("Equal", 13, 15))
sketch1.addConstraint(Sketcher.Constraint("Equal", 16, 17))
sketch1.addConstraint(Sketcher.Constraint("Equal", 17, 19))
sketch1.addConstraint(Sketcher.Constraint("Equal", 19, 20))
sketch1.addConstraint(Sketcher.Constraint("Equal", 21, 22))
sketch1.addConstraint(Sketcher.Constraint("Equal", 15, 24))
sketch1.addConstraint(Sketcher.Constraint("Equal", 24, 26))
sketch1.addConstraint(Sketcher.Constraint("Equal", 26, 28))
sketch1.addConstraint(Sketcher.Constraint("Equal", 22, 29))
sketch1.addConstraint(Sketcher.Constraint("Equal", 20, 30))
sketch1.addConstraint(Sketcher.Constraint("Equal", 30, 31))
sketch1.addConstraint(Sketcher.Constraint("Equal", 18, 32))
sketch1.addConstraint(Sketcher.Constraint("Equal", 31, 33))
sketch1.addConstraint(Sketcher.Constraint("Equal", 33, 34))
sketch1.addConstraint(Sketcher.Constraint("Equal", 29, 35))
sketch1.addConstraint(Sketcher.Constraint("Equal", 28, 36))
sketch1.addConstraint(Sketcher.Constraint("Equal", 36, 38))
sketch1.addConstraint(Sketcher.Constraint("Equal", 38, 40))
sketch1.addConstraint(Sketcher.Constraint("Equal", 40, 42))
sketch1.addConstraint(Sketcher.Constraint("Equal", 42, 44))
sketch1.addConstraint(Sketcher.Constraint("Equal", 44, 46))
sketch1.addConstraint(Sketcher.Constraint("Equal", 46, 48))
sketch1.addConstraint(Sketcher.Constraint("Equal", 48, 50))
sketch1.addConstraint(Sketcher.Constraint("Equal", 50, 52))
sketch1.addConstraint(Sketcher.Constraint("Equal", 52, 55))
sketch1.addConstraint(Sketcher.Constraint("Equal", 55, 57))
sketch1.addConstraint(Sketcher.Constraint("Equal", 57, 59))
sketch1.addConstraint(Sketcher.Constraint("Equal", 35, 60))
sketch1.addConstraint(Sketcher.Constraint("Equal", 59, 62))
sketch1.addConstraint(Sketcher.Constraint("Equal", 62, 64))
sketch1.addConstraint(Sketcher.Constraint("Equal", 64, 66))
sketch1.addConstraint(Sketcher.Constraint("Equal", 60, 67))
sketch1.addConstraint(Sketcher.Constraint("Equal", 34, 68))
sketch1.addConstraint(Sketcher.Constraint("Equal", 68, 69))
sketch1.addConstraint(Sketcher.Constraint("Equal", 66, 70))
sketch1.addConstraint(Sketcher.Constraint("Equal", 70, 72))
sketch1.addConstraint(Sketcher.Constraint("Equal", 72, 74))
sketch1.addConstraint(Sketcher.Constraint("Equal", 67, 76))
sketch1.addConstraint(Sketcher.Constraint("Equal", 74, 77))
sketch1.addConstraint(Sketcher.Constraint("Equal", 77, 79))
sketch1.addConstraint(Sketcher.Constraint("Equal", 79, 81))
sketch1.addConstraint(Sketcher.Constraint("Equal", 69, 83))
sketch1.addConstraint(Sketcher.Constraint("Equal", 32, 84))
sketch1.addConstraint(Sketcher.Constraint("Equal", 83, 85))
sketch1.addConstraint(Sketcher.Constraint("Equal", 76, 86))
sketch1.addConstraint(Sketcher.Constraint("Symmetric", 2, 3, 11, 3, -1, 1))
sketch1.addConstraint(Sketcher.Constraint("Symmetric", 5, 3, 14, 3, -1, 1))
sketch1.addConstraint(Sketcher.Constraint("Symmetric", 35, 3, 60, 3, -1, 1))
sketch1.addConstraint(Sketcher.Constraint("Symmetric", 29, 3, 67, 3, -1, 1))
sketch1.addConstraint(Sketcher.Constraint("Symmetric", 22, 3, 76, 3, -1, 1))
sketch1.addConstraint(Sketcher.Constraint("Symmetric", 21, 3, 86, 3, -1, 1))
sketch1.addConstraint(Sketcher.Constraint("Symmetric", 7, 3, 9, 3, -2))
sketch1.addConstraint(Sketcher.Constraint("Symmetric", 22, 3, 29, 3, -2))
sketch1.addConstraint(Sketcher.Constraint("Symmetric", 19, 3, 30, 3, -2))
sketch1.addConstraint(Sketcher.Constraint("Symmetric", 16, 3, 31, 3, -2))
sketch1.addConstraint(Sketcher.Constraint("Symmetric", 17, 3, 33, 3, -2))
sketch1.addConstraint(Sketcher.Constraint("Symmetric", 20, 3, 34, 3, -2))
sketch1.addConstraint(Sketcher.Constraint("Symmetric", 21, 3, 35, 3, -2))
sketch1.addConstraint(Sketcher.Constraint("Symmetric", 26, 3, 36, 3, -2))
sketch1.addConstraint(Sketcher.Constraint("Symmetric", 24, 3, 38, 3, -2))
sketch1.addConstraint(Sketcher.Constraint("Symmetric", 44, 3, 50, 3, -2))
sketch1.addConstraint(Sketcher.Constraint("Symmetric", 57, 3, 70, 3, -2))
sketch1.addConstraint(Sketcher.Constraint("Symmetric", 59, 3, 74, 3, -2))
sketch1.addConstraint(Sketcher.Constraint("Symmetric", 64, 3, 77, 3, -2))
sketch1.addConstraint(Sketcher.Constraint("Symmetric", 66, 3, 81, 3, -2))
sketch1.addConstraint(Sketcher.Constraint("Symmetric", 68, 3, 83, 3, -2))
sketch1.addConstraint(Sketcher.Constraint("Symmetric", 69, 3, 85, 3, -2))
sketch1.addConstraint(Sketcher.Constraint("Parallel", 37, 43))
sketch1.addConstraint(Sketcher.Constraint("Parallel", 41, 45))
sketch1.addConstraint(Sketcher.Constraint("Parallel", 25, 51))
sketch1.addConstraint(Sketcher.Constraint("Parallel", 51, 54))
sketch1.addConstraint(Sketcher.Constraint("Parallel", 27, 58))
sketch1.addConstraint(Sketcher.Constraint("Parallel", 58, 61))
sketch1.addConstraint(Sketcher.Constraint("Parallel", 54, 65))
sketch1.addConstraint(Sketcher.Constraint("Parallel", 43, 73))
sketch1.addConstraint(Sketcher.Constraint("Parallel", 45, 75))
sketch1.addConstraint(Sketcher.Constraint("Parallel", 75, 80))
sketch1.addConstraint(Sketcher.Constraint("Horizontal", 3, 3, 13, 3))
sketch1.addConstraint(Sketcher.Constraint("Horizontal", 14, 3, 17, 3))
sketch1.addConstraint(Sketcher.Constraint("Horizontal", 18, 3, 19, 3))
sketch1.addConstraint(Sketcher.Constraint("Horizontal", 21, 3, 22, 3))
sketch1.addConstraint(Sketcher.Constraint("Vertical", 14, 3, 16, 3))
sketch1.addConstraint(Sketcher.Constraint("Vertical", 18, 3, 20, 3))
sketch1.addConstraint(Sketcher.Constraint("Vertical", 68, 3, 69, 3))
sketch1.addConstraint(Sketcher.Constraint("Diameter", 18, Q("23 mm")))
sketch1.addConstraint(Sketcher.Constraint("Radius", 1, Q("10 mm")))
sketch1.addConstraint(Sketcher.Constraint("Diameter", 16, Q("4.5 mm")))
sketch1.addConstraint(Sketcher.Constraint("Diameter", 21, Q("3.5 mm")))
sketch1.addConstraint(Sketcher.Constraint("Radius", 2, Q("32.5 mm")))
sketch1.addConstraint(Sketcher.Constraint("DistanceX", 0, 1, 0, 2, Q("393 mm")))
sketch1.addConstraint(Sketcher.Constraint("DistanceY", 4, 2, 4, 1, Q("230.5 mm")))
sketch1.addConstraint(Sketcher.Constraint("DistanceY", -1, 1, 1, 3, Q("154 mm")))
sketch1.addConstraint(Sketcher.Constraint("DistanceY", 8, 3, -1, 1, Q("139 mm")))
sketch1.addConstraint(Sketcher.Constraint("DistanceY", -1, 1, 24, 3, Q("114 mm")))
sketch1.addConstraint(Sketcher.Constraint("DistanceX", 55, 3, -1, 1, Q("214 mm")))
sketch1.addConstraint(Sketcher.Constraint("DistanceY", 62, 3, -1, 1, Q("114 mm")))
sketch1.addConstraint(Sketcher.Constraint("DistanceX", 21, 3, -1, 1, Q("211.5 mm")))
sketch1.addConstraint(Sketcher.Constraint("DistanceY", -1, 1, 21, 3, Q("104.5 mm")))
sketch1.addConstraint(Sketcher.Constraint("DistanceX", 22, 3, -1, 1, Q("2.5 mm")))
sketch1.addConstraint(Sketcher.Constraint("DistanceY", 42, 3, -1, 1, Q("90.5 mm")))
sketch1.addConstraint(Sketcher.Constraint("DistanceY", -1, 1, 46, 3, Q("90.5 mm")))
sketch1.addConstraint(Sketcher.Constraint("DistanceX", 23, 2, 23, 1, Q("133.279001 mm")))
sketch1.addConstraint(Sketcher.Constraint("DistanceY", -1, 1, 16, 3, Q("150.67 mm")))
sketch1.addConstraint(Sketcher.Constraint("DistanceX", 17, 3, -1, 1, Q("250.67 mm")))
sketch1.addConstraint(Sketcher.Constraint("DistanceX", 19, 3, -1, 1, Q("217.33 mm")))
sketch1.addConstraint(Sketcher.Constraint("DistanceY", -1, 1, 20, 3, Q("117.33 mm")))
sketch1.addConstraint(Sketcher.Constraint("Distance", 61, Q("98.969 mm")))
sketch1.addConstraint(Sketcher.Constraint("Distance", 49, Q("122.8354 mm")))
sketch1.addConstraint(Sketcher.Constraint("Distance", 54, Q("96.593398 mm")))
sketch1.addConstraint(Sketcher.Constraint("DistanceX", 53, 1, 53, 2, Q("17.288968 mm")))
sketch1.addConstraint(Sketcher.Constraint("DistanceX", 24, 3, -1, 1, Q("183.930198 mm")))
sketch1.addConstraint(Sketcher.Constraint("DistanceY", -1, 1, 55, 3, Q("72.251898 mm")))
sketch1.addConstraint(Sketcher.Constraint("DistanceX", 66, 2, -1, 1, Q("125.7888 mm")))
sketch1.addConstraint(Sketcher.Constraint("Distance", 45, Q("121.987181 mm")))
sketch1.addConstraint(Sketcher.Constraint("DistanceX", 47, 2, 47, 1, Q("8.301795 mm")))
sketch1.addConstraint(Sketcher.Constraint("DistanceX", 63, 1, 63, 2, Q("128.993287 mm")))
sketch1.addConstraint(Sketcher.Constraint("DistanceX", 68, 3, -1, 1, Q("11.78747 mm")))
sketch1.addConstraint(Sketcher.Constraint("DistanceY", 68, 3, -1, 1, Q("127.21253 mm")))
sketch1.addConstraint(Sketcher.Constraint("DistanceY", 69, 3, -1, 1, Q("150.78747 mm")))
pad1 = doc.addObject("PartDesign::Pad", "Pad")
body.addObject(pad1)
pad1.Profile = sketch1
pad1.Length = 5
pad1.Reversed = True

doc.recompute()
